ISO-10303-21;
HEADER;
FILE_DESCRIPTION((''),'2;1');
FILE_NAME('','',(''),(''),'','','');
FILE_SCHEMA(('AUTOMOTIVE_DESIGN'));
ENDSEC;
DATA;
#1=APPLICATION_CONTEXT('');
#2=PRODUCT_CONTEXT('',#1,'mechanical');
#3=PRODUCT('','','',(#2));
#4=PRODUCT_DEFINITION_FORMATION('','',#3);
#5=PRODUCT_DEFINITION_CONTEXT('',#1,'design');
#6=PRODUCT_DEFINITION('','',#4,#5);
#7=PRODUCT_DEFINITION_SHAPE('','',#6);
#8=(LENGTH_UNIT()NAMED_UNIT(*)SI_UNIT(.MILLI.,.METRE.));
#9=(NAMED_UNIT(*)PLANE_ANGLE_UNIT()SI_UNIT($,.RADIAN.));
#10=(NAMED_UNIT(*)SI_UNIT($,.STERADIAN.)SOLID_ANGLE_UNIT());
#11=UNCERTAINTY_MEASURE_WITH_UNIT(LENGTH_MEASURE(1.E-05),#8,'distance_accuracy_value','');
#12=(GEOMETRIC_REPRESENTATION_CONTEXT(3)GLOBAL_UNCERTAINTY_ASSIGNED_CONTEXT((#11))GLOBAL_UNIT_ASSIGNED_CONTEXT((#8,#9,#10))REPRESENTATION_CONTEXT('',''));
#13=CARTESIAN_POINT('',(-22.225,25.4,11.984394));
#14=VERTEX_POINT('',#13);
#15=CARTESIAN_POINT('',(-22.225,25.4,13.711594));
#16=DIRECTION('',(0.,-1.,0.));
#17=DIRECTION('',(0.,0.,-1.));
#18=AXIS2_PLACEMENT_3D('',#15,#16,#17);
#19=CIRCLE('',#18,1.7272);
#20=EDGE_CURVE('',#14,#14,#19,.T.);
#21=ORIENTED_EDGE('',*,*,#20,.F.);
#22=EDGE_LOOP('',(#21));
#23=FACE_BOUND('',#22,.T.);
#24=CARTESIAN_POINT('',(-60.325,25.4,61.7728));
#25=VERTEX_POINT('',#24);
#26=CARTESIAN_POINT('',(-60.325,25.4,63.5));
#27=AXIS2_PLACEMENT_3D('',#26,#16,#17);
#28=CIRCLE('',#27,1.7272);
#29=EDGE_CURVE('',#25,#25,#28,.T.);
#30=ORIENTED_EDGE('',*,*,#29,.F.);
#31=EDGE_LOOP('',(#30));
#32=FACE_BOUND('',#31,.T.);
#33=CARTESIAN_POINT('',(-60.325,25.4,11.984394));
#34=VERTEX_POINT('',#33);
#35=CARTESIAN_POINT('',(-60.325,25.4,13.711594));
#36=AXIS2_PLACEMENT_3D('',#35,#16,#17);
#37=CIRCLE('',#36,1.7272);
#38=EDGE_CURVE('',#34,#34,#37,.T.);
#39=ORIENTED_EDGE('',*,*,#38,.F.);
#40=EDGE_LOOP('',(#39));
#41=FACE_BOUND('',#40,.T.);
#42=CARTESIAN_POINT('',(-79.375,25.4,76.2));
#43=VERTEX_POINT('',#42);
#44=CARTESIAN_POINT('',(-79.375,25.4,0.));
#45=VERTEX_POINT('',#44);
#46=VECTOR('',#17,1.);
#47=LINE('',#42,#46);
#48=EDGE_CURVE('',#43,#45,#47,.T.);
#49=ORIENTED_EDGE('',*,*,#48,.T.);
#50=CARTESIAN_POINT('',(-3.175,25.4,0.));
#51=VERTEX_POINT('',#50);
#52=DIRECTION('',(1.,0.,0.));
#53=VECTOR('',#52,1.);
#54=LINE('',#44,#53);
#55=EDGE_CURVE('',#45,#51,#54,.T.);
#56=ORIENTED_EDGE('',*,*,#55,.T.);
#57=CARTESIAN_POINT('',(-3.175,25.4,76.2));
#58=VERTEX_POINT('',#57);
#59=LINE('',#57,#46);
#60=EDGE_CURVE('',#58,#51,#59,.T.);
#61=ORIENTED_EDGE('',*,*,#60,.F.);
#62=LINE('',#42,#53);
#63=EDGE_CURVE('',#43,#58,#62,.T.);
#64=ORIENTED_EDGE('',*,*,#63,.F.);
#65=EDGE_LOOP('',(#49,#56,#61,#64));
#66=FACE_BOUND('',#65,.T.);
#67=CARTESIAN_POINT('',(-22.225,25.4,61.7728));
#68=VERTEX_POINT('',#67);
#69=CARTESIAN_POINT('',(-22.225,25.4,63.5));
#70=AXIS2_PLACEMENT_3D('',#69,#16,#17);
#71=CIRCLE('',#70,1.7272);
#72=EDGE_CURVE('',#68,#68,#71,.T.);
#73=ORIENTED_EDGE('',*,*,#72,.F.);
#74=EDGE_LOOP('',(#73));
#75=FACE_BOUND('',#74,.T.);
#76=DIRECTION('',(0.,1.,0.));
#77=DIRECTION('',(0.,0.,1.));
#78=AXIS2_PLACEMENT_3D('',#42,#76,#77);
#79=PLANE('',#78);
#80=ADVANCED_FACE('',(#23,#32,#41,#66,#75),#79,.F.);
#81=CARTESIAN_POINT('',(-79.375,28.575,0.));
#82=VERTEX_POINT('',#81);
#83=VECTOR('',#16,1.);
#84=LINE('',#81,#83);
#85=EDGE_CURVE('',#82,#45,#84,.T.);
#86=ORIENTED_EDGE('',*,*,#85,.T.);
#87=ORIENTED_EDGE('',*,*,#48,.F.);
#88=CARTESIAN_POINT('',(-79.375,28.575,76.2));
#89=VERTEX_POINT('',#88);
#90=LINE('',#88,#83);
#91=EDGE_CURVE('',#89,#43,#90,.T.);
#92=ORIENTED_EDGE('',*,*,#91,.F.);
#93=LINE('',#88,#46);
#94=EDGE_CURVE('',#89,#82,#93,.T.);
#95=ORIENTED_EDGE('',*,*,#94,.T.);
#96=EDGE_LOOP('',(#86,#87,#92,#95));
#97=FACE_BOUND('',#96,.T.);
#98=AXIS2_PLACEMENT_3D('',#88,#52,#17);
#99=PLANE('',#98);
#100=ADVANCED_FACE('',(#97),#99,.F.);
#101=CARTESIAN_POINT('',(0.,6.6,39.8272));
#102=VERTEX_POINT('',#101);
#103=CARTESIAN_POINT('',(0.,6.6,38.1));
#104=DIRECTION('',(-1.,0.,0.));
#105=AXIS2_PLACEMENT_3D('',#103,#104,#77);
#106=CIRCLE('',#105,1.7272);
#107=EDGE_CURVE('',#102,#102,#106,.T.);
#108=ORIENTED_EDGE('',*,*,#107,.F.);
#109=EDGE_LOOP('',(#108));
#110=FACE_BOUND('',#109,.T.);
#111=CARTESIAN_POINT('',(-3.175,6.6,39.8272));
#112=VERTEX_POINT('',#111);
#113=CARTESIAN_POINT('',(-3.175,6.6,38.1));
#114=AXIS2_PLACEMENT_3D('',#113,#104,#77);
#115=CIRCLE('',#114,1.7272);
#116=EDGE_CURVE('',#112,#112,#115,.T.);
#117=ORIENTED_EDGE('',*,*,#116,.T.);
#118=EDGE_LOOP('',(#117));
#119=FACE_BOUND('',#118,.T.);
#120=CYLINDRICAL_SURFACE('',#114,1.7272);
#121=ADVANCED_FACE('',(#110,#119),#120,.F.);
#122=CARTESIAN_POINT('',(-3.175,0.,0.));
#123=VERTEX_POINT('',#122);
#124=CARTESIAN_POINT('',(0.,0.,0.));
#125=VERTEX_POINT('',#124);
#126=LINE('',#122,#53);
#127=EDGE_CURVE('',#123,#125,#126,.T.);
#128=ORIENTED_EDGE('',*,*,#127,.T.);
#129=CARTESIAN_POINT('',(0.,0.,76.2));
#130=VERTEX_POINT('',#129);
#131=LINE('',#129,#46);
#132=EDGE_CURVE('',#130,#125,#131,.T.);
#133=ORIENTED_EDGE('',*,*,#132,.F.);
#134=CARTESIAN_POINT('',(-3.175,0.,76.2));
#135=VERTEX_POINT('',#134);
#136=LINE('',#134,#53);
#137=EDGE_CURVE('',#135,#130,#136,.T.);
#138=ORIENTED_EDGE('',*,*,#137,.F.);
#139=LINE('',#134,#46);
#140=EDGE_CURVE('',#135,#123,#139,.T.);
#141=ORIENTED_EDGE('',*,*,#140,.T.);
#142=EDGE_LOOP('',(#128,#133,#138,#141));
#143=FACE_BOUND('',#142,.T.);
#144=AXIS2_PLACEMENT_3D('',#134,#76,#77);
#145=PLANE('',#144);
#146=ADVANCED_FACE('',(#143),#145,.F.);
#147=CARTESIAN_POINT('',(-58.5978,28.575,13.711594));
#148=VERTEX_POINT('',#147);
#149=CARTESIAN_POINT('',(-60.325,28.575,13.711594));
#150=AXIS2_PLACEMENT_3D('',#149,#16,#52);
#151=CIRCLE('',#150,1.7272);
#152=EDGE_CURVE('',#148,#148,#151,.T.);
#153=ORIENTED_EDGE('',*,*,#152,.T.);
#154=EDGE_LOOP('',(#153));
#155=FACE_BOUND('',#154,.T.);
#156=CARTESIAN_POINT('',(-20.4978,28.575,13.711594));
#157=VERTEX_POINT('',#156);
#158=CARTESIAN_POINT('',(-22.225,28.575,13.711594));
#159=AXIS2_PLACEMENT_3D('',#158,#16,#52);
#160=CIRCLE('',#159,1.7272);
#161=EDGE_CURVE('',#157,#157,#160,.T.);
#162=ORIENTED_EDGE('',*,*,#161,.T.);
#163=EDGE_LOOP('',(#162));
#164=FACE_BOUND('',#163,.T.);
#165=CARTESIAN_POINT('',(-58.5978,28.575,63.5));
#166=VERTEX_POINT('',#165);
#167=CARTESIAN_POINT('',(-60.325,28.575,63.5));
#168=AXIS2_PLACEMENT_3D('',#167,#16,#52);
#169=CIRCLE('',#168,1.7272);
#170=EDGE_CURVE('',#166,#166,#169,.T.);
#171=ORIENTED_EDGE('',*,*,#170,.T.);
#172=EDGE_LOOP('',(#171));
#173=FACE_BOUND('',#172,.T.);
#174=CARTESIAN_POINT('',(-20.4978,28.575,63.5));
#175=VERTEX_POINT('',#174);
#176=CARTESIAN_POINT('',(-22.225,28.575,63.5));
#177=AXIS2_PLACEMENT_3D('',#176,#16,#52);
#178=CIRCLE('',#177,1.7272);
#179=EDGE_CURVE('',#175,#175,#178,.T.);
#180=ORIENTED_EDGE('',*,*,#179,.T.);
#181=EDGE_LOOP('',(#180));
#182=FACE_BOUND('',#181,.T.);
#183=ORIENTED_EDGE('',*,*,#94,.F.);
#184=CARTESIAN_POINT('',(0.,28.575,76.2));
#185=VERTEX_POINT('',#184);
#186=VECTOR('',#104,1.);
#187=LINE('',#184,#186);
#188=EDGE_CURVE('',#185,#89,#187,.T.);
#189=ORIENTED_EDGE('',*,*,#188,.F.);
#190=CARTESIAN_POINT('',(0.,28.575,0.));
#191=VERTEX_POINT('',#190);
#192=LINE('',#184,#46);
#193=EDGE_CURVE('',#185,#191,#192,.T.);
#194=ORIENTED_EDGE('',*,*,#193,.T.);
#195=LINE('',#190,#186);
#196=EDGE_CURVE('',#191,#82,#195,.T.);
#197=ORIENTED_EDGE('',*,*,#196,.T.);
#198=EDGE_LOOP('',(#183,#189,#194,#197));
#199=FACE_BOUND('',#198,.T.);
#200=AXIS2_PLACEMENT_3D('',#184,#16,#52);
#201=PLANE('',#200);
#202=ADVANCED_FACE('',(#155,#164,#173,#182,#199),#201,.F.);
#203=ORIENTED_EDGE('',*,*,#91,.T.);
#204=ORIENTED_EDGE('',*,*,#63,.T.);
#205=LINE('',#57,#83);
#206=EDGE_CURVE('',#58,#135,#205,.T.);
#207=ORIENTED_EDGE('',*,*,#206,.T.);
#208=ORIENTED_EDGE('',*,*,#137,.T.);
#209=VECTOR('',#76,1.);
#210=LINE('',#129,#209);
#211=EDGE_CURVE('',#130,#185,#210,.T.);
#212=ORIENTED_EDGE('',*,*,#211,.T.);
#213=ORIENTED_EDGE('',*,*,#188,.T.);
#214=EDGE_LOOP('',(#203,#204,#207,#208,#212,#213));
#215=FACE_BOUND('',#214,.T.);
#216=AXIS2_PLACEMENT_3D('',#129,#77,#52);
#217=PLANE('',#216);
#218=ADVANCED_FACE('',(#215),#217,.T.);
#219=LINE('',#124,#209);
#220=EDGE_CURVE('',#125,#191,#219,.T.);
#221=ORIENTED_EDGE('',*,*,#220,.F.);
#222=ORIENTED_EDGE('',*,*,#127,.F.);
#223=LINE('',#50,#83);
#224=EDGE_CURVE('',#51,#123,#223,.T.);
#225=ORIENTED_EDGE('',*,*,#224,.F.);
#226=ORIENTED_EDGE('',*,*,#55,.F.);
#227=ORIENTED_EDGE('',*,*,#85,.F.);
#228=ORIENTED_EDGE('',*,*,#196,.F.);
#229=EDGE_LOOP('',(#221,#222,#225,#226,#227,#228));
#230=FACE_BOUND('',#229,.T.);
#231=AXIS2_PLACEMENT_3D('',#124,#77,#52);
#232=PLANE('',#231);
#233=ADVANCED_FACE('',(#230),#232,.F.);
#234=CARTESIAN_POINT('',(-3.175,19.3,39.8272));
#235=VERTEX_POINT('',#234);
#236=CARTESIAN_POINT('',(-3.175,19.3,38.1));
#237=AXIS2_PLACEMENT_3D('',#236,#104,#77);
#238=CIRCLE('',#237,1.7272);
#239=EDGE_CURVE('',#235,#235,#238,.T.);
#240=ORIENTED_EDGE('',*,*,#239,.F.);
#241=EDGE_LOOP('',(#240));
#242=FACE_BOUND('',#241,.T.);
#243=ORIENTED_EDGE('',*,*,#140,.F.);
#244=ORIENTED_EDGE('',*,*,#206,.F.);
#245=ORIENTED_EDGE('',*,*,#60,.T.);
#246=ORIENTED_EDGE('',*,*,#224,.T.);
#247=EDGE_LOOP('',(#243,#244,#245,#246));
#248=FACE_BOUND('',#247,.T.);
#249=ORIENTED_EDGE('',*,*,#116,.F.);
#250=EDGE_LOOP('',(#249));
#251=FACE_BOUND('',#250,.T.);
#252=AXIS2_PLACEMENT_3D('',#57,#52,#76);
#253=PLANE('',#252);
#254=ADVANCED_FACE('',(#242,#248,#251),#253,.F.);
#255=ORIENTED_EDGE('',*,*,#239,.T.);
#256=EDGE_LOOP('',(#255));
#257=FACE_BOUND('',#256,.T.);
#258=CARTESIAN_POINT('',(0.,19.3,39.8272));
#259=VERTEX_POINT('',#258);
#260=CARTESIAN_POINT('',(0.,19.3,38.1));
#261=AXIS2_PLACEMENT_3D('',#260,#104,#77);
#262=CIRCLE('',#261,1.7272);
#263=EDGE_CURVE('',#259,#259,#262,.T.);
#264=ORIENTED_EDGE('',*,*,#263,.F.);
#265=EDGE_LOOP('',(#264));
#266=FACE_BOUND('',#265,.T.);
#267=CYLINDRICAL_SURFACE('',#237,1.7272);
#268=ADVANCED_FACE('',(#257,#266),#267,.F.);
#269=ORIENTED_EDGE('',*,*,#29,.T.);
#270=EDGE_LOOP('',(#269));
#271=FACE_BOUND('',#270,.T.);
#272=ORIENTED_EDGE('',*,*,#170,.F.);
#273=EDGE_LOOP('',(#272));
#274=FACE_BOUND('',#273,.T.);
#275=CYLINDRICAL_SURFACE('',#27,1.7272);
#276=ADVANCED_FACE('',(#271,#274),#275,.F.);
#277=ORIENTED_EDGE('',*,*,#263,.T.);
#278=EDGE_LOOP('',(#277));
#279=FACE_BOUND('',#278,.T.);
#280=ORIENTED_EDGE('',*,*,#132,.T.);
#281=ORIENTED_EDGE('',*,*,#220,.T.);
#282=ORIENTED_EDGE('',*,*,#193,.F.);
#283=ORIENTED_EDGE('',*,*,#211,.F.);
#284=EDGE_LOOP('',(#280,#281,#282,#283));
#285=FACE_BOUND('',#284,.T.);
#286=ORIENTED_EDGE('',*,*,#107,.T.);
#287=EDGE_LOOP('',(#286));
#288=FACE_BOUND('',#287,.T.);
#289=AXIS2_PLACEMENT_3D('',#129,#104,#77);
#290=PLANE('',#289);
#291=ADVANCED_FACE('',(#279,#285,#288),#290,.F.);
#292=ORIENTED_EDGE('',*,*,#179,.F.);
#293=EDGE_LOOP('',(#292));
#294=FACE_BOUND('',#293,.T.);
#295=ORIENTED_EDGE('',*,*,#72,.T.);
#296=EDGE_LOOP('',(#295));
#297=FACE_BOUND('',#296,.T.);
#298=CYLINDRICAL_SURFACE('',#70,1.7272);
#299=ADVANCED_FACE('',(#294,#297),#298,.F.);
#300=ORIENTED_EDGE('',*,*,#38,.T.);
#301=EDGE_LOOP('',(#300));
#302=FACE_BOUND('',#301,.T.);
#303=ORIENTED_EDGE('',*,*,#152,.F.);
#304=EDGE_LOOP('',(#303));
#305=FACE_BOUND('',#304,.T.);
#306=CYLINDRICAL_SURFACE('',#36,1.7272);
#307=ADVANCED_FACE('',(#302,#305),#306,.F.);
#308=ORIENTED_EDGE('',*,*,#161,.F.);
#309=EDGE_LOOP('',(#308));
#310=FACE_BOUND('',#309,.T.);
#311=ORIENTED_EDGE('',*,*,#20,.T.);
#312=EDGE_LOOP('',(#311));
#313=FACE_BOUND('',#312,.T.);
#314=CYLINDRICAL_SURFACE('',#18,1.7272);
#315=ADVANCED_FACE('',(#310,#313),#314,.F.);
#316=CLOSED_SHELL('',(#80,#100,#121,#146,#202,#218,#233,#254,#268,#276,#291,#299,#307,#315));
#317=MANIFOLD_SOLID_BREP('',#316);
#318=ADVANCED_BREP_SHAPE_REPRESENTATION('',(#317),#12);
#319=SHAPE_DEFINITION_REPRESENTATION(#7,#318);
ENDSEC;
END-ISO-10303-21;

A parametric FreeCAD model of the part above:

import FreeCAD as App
import Part
import Sketcher
from FreeCAD import Vector
Q = App.Units.Quantity

doc = App.newDocument("Part")
body = doc.addObject("PartDesign::Body", "Body")

# Sketch on XY plane
sketch1 = body.newObject("Sketcher::SketchObject", "Sketch")
sketch1.AttachmentSupport = (doc.getObject("XY_Plane"), [""])
sketch1.MapMode = "FlatFace"
sketch1.addGeometry(Part.LineSegment(Vector(0, 0, 0), Vector(0, 28.6, 0)), False)
sketch1.addGeometry(Part.LineSegment(Vector(0, 28.6, 0), Vector(-79.4, 28.6, 0)), False)
sketch1.addGeometry(Part.LineSegment(Vector(-79.4, 28.6, 0), Vector(-79.4, 25.4, 0)), False)
sketch1.addGeometry(Part.LineSegment(Vector(-79.4, 25.4, 0), Vector(-3.2, 25.4, 0)), False)
sketch1.addGeometry(Part.LineSegment(Vector(-3.2, 25.4, 0), Vector(-3.2, 0, 0)), False)
sketch1.addGeometry(Part.LineSegment(Vector(-3.2, 0, 0), Vector(0, 0, 0)), False)
sketch1.addConstraint(Sketcher.Constraint("Coincident", 0, 2, 1, 1))
sketch1.addConstraint(Sketcher.Constraint("Coincident", 1, 2, 2, 1))
sketch1.addConstraint(Sketcher.Constraint("Coincident", 2, 2, 3, 1))
sketch1.addConstraint(Sketcher.Constraint("Coincident", 3, 2, 4, 1))
sketch1.addConstraint(Sketcher.Constraint("Coincident", 4, 2, 5, 1))
sketch1.addConstraint(Sketcher.Constraint("Coincident", 5, 2, 0, 1))
sketch1.addConstraint(Sketcher.Constraint("Vertical", 0))
sketch1.addConstraint(Sketcher.Constraint("Horizontal", 1))
sketch1.addConstraint(Sketcher.Constraint("Vertical", 2))
sketch1.addConstraint(Sketcher.Constraint("Horizontal", 3))
sketch1.addConstraint(Sketcher.Constraint("Vertical", 4))
sketch1.addConstraint(Sketcher.Constraint("Horizontal", 5))
sketch1.addConstraint(Sketcher.Constraint("Coincident", 5, 2, -1, 1))
sketch1.addConstraint(Sketcher.Constraint("Equal", 5, 2))
sketch1.addConstraint(Sketcher.Constraint("DistanceX", 3, 1, 3, 2, Q("3 in")))
sketch1.addConstraint(Sketcher.Constraint("DistanceY", 4, 2, 4, 1, Q("1 in")))
sketch1.addConstraint(Sketcher.Constraint("DistanceX", 1, 2, 1, 1, Q("3.125 in")))
pad1 = body.newObject("PartDesign::Pad", "Pad")
pad1.Profile = sketch1
pad1.Length = Q("3 in")

# Sketch on YZ plane
sketch2 = body.newObject("Sketcher::SketchObject", "Sketch001")
sketch2.AttachmentSupport = (doc.getObject("YZ_Plane"), [""])
sketch2.MapMode = "FlatFace"
sketch2.AttachmentOffset = App.Placement(Vector(0, 0, -0.125 * 25.4), App.Rotation())
sketch2.addGeometry(Part.Circle(Vector(6.6, 38.1, 0), Vector(0, 0, 1), 1.7), False)
sketch2.addGeometry(Part.Circle(Vector(19.3, 38.1, 0), Vector(0, 0, 1), 1.7), False)
sketch2.addConstraint(Sketcher.Constraint("Equal", 0, 1))
sketch2.addConstraint(Sketcher.Constraint("Horizontal", 0, 3, 1, 3))
sketch2.addConstraint(Sketcher.Constraint("Diameter", 0, Q("0.136 in")))
sketch2.addConstraint(Sketcher.Constraint("DistanceY", -1, 1, 0, 3, Q("1.5 in")))
sketch2.addConstraint(Sketcher.Constraint("DistanceX", 0, 3, 1, 3, Q("0.5 in")))
sketch2.addConstraint(Sketcher.Constraint("DistanceX", -1, 1, 0, 3, Q("6.6 mm")))
doc.recompute()
hole = body.newObject("PartDesign::Hole", "Hole")
hole.Profile = sketch2
hole.ThreadType = "None"
hole.Diameter = Q("0.136 in")
hole.DepthType = "ThroughAll"
hole.Reversed = True

# Sketch on XZ plane
sketch3 = body.newObject("Sketcher::SketchObject", "Sketch002")
sketch3.AttachmentSupport = (doc.getObject("XZ_Plane"), [""])
sketch3.MapMode = "FlatFace"
sketch3.AttachmentOffset = App.Placement(Vector(0, 0, -1 * 25.4), App.Rotation())
sketch3.addGeometry(Part.Circle(Vector(-60.3, 63.5, 0), Vector(0, 0, 1), 1.7), False)
sketch3.addGeometry(Part.Circle(Vector(-22.2, 63.5, 0), Vector(0, 0, 1), 1.7), False)
sketch3.addGeometry(Part.Circle(Vector(-60.3, 13.7, 0), Vector(0, 0, 1), 1.7), False)
sketch3.addGeometry(Part.Circle(Vector(-22.2, 13.7, 0), Vector(0, 0, 1), 1.7), False)
sketch3.addConstraint(Sketcher.Constraint("Equal", 0, 1))
sketch3.addConstraint(Sketcher.Constraint("Equal", 1, 2))
sketch3.addConstraint(Sketcher.Constraint("Equal", 2, 3))
sketch3.addConstraint(Sketcher.Constraint("Horizontal", 0, 3, 1, 3))
sketch3.addConstraint(Sketcher.Constraint("Horizontal", 2, 3, 3, 3))
sketch3.addConstraint(Sketcher.Constraint("Vertical", 0, 3, 2, 3))
sketch3.addConstraint(Sketcher.Constraint("Vertical", 1, 3, 3, 3))
sketch3.addConstraint(Sketcher.Constraint("Diameter", 0, Q("0.136 in")))
sketch3.addConstraint(Sketcher.Constraint("DistanceY", -1, 1, 0, 3, Q("2.5 in")))
sketch3.addConstraint(Sketcher.Constraint("DistanceX", 0, 3, 1, 3, Q("1.5 in")))
sketch3.addConstraint(Sketcher.Constraint("DistanceX", 0, 3, -1, 1, Q("2.375 in")))
sketch3.addConstraint(Sketcher.Constraint("DistanceY", -1, 1, 2, 3, Q("13.711594 mm")))
doc.recompute()
hole2 = body.newObject("PartDesign::Hole", "Hole001")
hole2.Profile = sketch3
hole2.ThreadType = "None"
hole2.Diameter = Q("0.136 in")
hole2.DepthType = "ThroughAll"

doc.recompute()
